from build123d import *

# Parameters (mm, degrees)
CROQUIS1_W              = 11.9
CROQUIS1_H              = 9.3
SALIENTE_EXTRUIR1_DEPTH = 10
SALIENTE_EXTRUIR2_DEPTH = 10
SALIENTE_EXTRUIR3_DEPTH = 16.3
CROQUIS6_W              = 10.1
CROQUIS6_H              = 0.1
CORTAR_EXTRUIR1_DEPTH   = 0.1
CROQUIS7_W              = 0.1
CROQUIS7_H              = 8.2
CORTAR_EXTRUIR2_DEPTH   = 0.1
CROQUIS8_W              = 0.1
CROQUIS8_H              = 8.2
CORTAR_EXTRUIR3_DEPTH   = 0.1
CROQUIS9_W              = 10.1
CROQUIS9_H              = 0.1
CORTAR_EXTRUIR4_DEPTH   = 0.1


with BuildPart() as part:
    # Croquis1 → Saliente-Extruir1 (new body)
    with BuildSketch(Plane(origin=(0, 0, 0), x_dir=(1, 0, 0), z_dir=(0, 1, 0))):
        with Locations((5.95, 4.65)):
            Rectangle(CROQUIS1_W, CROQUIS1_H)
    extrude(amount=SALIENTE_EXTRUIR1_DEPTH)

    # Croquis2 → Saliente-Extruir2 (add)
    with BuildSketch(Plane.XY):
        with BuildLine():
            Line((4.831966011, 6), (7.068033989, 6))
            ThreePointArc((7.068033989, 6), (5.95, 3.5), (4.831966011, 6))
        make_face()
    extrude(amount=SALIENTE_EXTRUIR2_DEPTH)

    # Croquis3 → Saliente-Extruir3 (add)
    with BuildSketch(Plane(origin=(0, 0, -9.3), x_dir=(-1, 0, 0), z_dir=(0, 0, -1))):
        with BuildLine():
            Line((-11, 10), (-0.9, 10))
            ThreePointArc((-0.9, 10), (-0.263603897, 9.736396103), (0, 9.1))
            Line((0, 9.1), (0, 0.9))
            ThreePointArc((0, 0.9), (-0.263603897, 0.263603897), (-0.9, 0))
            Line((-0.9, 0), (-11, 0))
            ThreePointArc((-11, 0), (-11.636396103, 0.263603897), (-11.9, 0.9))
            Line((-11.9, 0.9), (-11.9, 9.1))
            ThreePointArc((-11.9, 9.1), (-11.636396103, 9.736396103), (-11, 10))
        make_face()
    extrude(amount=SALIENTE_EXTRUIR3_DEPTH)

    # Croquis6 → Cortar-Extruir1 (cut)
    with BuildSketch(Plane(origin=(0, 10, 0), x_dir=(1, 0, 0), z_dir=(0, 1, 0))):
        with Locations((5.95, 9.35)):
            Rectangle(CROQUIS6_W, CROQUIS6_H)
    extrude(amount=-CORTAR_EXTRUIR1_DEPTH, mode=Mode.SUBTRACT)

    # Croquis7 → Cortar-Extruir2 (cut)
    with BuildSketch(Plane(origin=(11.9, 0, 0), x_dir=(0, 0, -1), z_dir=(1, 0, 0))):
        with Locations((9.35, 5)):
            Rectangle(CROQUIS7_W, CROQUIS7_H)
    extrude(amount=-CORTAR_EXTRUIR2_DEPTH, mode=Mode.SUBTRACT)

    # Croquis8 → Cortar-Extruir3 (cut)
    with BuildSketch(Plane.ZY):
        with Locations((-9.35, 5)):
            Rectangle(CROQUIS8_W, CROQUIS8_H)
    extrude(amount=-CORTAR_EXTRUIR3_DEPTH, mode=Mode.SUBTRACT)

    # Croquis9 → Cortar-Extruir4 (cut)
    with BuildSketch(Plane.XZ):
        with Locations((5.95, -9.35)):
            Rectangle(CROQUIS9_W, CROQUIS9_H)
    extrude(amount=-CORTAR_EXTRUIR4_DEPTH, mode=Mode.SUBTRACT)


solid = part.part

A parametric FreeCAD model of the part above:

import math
import FreeCAD as App
import Part
import Sketcher

V = App.Vector
Q = App.Units.Quantity


def add_polygon(sketch, points):
    """Adds a closed chain of lines whose ends are joined by coincident constraints."""
    first, n = sketch.GeometryCount, len(points)
    for a, b in zip(points, points[1:] + points[:1]):
        sketch.addGeometry(Part.LineSegment(App.Vector(*a, 0), App.Vector(*b, 0)), False)
    for i in range(n):
        sketch.addConstraint(Sketcher.Constraint("Coincident", first + i, 2, first + (i + 1) % n, 1))

doc = App.newDocument("Part")
body = doc.addObject("PartDesign::Body", "Body")

# Sketch on XZ plane
sketch1 = body.newObject("Sketcher::SketchObject", "Sketch")
sketch1.AttachmentSupport = (doc.getObject("XZ_Plane"), [""])
sketch1.MapMode = "FlatFace"
add_polygon(sketch1, [(0, -9), (0, 0), (12, 0), (12, -9)])  # lines 0-3
sketch1.addConstraint([
    Sketcher.Constraint("Vertical", 0),
    Sketcher.Constraint("Horizontal", 1),
    Sketcher.Constraint("Vertical", 2),
    Sketcher.Constraint("Horizontal", 3),
    Sketcher.Constraint("Coincident", 0, 2, -1, 1),
    Sketcher.Constraint("DistanceX", 1, 1, 1, 2, Q("11.9 mm")),
    Sketcher.Constraint("DistanceY", 0, 1, 0, 2, Q("9.3 mm")),
])
pad1 = body.newObject("PartDesign::Pad", "Pad")
pad1.Profile = sketch1
pad1.Length = 10
pad1.Reversed = True

# Sketch on XY plane
sketch2 = body.newObject("Sketcher::SketchObject", "Sketch001")
sketch2.AttachmentSupport = (doc.getObject("XY_Plane"), [""])
sketch2.MapMode = "FlatFace"
sketch2.addGeometry([
    Part.LineSegment(V(7.1, 6, 0), V(4.8, 6, 0)),
    Part.ArcOfCircle(Part.Circle(V(6, 5, 0), V(0, 0, 1), 1.5), math.radians(138), math.radians(402)),
], False)
sketch2.addConstraint([
    Sketcher.Constraint("Coincident", 0, 1, 1, 2),
    Sketcher.Constraint("Coincident", 1, 1, 0, 2),
    Sketcher.Constraint("Horizontal", 0),
    Sketcher.Constraint("Radius", 1, Q("1.5 mm")),
    Sketcher.Constraint("DistanceY", -1, 1, 1, 3, Q("5 mm")),
    Sketcher.Constraint("DistanceY", -1, 1, 0, 1, Q("6 mm")),
    Sketcher.Constraint("DistanceX", -1, 1, 1, 3, Q("5.95 mm")),
])
pad2 = body.newObject("PartDesign::Pad", "Pad001")
pad2.Profile = sketch2
pad2.Length = 10

# Sketch on XY plane
sketch3 = body.newObject("Sketcher::SketchObject", "Sketch002")
sketch3.AttachmentSupport = (doc.getObject("XY_Plane"), [""])
sketch3.MapMode = "FlatFace"
sketch3.AttachmentOffset = App.Placement(V(0, 0, -9.3), App.Rotation())
sketch3.addGeometry([
    Part.LineSegment(V(0.9, 10, 0), V(11, 10, 0)),  # 0
    Part.ArcOfCircle(Part.Circle(V(11, 9.1, 0), V(0, 0, 1), 0.9), math.radians(0), math.radians(90)),  # 1
    Part.LineSegment(V(11.9, 9.1, 0), V(11.9, 0.9, 0)),  # 2
    Part.ArcOfCircle(Part.Circle(V(11, 0.9, 0), V(0, 0, 1), 0.9), math.radians(-90), math.radians(0)),  # 3
    Part.LineSegment(V(11, 0, 0), V(0.9, 0, 0)),  # 4
    Part.ArcOfCircle(Part.Circle(V(0.9, 0.9, 0), V(0, 0, 1), 0.9), math.radians(180), math.radians(270)),  # 5
    Part.LineSegment(V(0, 0.9, 0), V(0, 9.1, 0)),  # 6
    Part.ArcOfCircle(Part.Circle(V(0.9, 9.1, 0), V(0, 0, 1), 0.9), math.radians(90), math.radians(180)),  # 7
], False)
sketch3.addConstraint([
    Sketcher.Constraint("Tangent", 0, 2, 1, 2),
    Sketcher.Constraint("Tangent", 1, 1, 2, 1),
    Sketcher.Constraint("Tangent", 2, 2, 3, 2),
    Sketcher.Constraint("Tangent", 3, 1, 4, 1),
    Sketcher.Constraint("Tangent", 4, 2, 5, 2),
    Sketcher.Constraint("Tangent", 5, 1, 6, 1),
    Sketcher.Constraint("Tangent", 6, 2, 7, 2),
    Sketcher.Constraint("Tangent", 7, 1, 0, 1),
    Sketcher.Constraint("Horizontal", 0),
    Sketcher.Constraint("Vertical", 2),
    Sketcher.Constraint("Horizontal", 4),
    Sketcher.Constraint("Vertical", 6),
    Sketcher.Constraint("Equal", 1, 3),
    Sketcher.Constraint("Equal", 3, 5),
    Sketcher.Constraint("Equal", 5, 7),
    Sketcher.Constraint("PointOnObject", 3, 1, -1),
    Sketcher.Constraint("PointOnObject", 5, 1, -2),
    Sketcher.Constraint("Radius", 1, Q("0.9 mm")),
    Sketcher.Constraint("DistanceX", 0, 1, 0, 2, Q("10.1 mm")),
    Sketcher.Constraint("DistanceY", 2, 2, 2, 1, Q("8.2 mm")),
])
pad3 = body.newObject("PartDesign::Pad", "Pad002")
pad3.Profile = sketch3
pad3.Length = 16.3
pad3.Reversed = True

# Sketch on XZ plane
sketch4 = body.newObject("Sketcher::SketchObject", "Sketch003")
sketch4.AttachmentSupport = (doc.getObject("XZ_Plane"), [""])
sketch4.MapMode = "FlatFace"
sketch4.AttachmentOffset = App.Placement(V(0, 0, -10), App.Rotation())
add_polygon(sketch4, [(0.9, -9.4), (0.9, -9.3), (11, -9.3), (11, -9.4)])  # lines 0-3
sketch4.addConstraint([
    Sketcher.Constraint("Vertical", 0),
    Sketcher.Constraint("Horizontal", 1),
    Sketcher.Constraint("Vertical", 2),
    Sketcher.Constraint("Horizontal", 3),
    Sketcher.Constraint("DistanceX", 1, 1, 1, 2, Q("10.1 mm")),
    Sketcher.Constraint("DistanceY", 0, 1, 0, 2, Q("0.1 mm")),
    Sketcher.Constraint("DistanceX", -1, 1, 1, 2, Q("11 mm")),
    Sketcher.Constraint("DistanceY", 0, 2, -1, 1, Q("9.3 mm")),
])
pocket1 = body.newObject("PartDesign::Pocket", "Pocket")
pocket1.Profile = sketch4
pocket1.Length = 0.1
pocket1.Reversed = True

# Sketch on YZ plane
sketch5 = body.newObject("Sketcher::SketchObject", "Sketch004")
sketch5.AttachmentSupport = (doc.getObject("YZ_Plane"), [""])
sketch5.MapMode = "FlatFace"
sketch5.AttachmentOffset = App.Placement(V(0, 0, 11.9), App.Rotation())
add_polygon(sketch5, [(9.1, -9.3), (0.9, -9.3), (0.9, -9.4), (9.1, -9.4)])  # lines 0-3
sketch5.addConstraint([
    Sketcher.Constraint("Horizontal", 0),
    Sketcher.Constraint("Vertical", 1),
    Sketcher.Constraint("Horizontal", 2),
    Sketcher.Constraint("Vertical", 3),
    Sketcher.Constraint("DistanceX", 0, 2, 0, 1, Q("8.2 mm")),
    Sketcher.Constraint("DistanceY", 1, 2, 1, 1, Q("0.1 mm")),
    Sketcher.Constraint("DistanceX", -1, 1, 0, 2, Q("0.9 mm")),
    Sketcher.Constraint("DistanceY", 0, 2, -1, 1, Q("9.3 mm")),
])
pocket2 = body.newObject("PartDesign::Pocket", "Pocket001")
pocket2.Profile = sketch5
pocket2.Length = 0.1

# Sketch on YZ plane
sketch6 = body.newObject("Sketcher::SketchObject", "Sketch005")
sketch6.AttachmentSupport = (doc.getObject("YZ_Plane"), [""])
sketch6.MapMode = "FlatFace"
add_polygon(sketch6, [(9.1, -9.4), (0.9, -9.4), (0.9, -9.3), (9.1, -9.3)])  # lines 0-3
sketch6.addConstraint([
    Sketcher.Constraint("Horizontal", 0),
    Sketcher.Constraint("Vertical", 1),
    Sketcher.Constraint("Horizontal", 2),
    Sketcher.Constraint("Vertical", 3),
    Sketcher.Constraint("DistanceX", 0, 2, 0, 1, Q("8.2 mm")),
    Sketcher.Constraint("DistanceY", 1, 1, 1, 2, Q("0.1 mm")),
    Sketcher.Constraint("DistanceX", -1, 1, 0, 2, Q("0.9 mm")),
    Sketcher.Constraint("DistanceY", 0, 2, -1, 1, Q("9.4 mm")),
])
pocket3 = body.newObject("PartDesign::Pocket", "Pocket002")
pocket3.Profile = sketch6
pocket3.Length = 0.1
pocket3.Reversed = True

# Sketch on XZ plane
sketch7 = body.newObject("Sketcher::SketchObject", "Sketch006")
sketch7.AttachmentSupport = (doc.getObject("XZ_Plane"), [""])
sketch7.MapMode = "FlatFace"
add_polygon(sketch7, [(0.9, -9.3), (0.9, -9.4), (11, -9.4), (11, -9.3)])  # lines 0-3
sketch7.addConstraint([
    Sketcher.Constraint("Vertical", 0),
    Sketcher.Constraint("Horizontal", 1),
    Sketcher.Constraint("Vertical", 2),
    Sketcher.Constraint("Horizontal", 3),
    Sketcher.Constraint("DistanceX", 1, 1, 1, 2, Q("10.1 mm")),
    Sketcher.Constraint("DistanceY", 0, 2, 0, 1, Q("0.1 mm")),
    Sketcher.Constraint("DistanceX", -1, 1, 1, 2, Q("11 mm")),
    Sketcher.Constraint("DistanceY", 0, 2, -1, 1, Q("9.4 mm")),
])
pocket4 = body.newObject("PartDesign::Pocket", "Pocket003")
pocket4.Profile = sketch7
pocket4.Length = 0.1

doc.recompute()
